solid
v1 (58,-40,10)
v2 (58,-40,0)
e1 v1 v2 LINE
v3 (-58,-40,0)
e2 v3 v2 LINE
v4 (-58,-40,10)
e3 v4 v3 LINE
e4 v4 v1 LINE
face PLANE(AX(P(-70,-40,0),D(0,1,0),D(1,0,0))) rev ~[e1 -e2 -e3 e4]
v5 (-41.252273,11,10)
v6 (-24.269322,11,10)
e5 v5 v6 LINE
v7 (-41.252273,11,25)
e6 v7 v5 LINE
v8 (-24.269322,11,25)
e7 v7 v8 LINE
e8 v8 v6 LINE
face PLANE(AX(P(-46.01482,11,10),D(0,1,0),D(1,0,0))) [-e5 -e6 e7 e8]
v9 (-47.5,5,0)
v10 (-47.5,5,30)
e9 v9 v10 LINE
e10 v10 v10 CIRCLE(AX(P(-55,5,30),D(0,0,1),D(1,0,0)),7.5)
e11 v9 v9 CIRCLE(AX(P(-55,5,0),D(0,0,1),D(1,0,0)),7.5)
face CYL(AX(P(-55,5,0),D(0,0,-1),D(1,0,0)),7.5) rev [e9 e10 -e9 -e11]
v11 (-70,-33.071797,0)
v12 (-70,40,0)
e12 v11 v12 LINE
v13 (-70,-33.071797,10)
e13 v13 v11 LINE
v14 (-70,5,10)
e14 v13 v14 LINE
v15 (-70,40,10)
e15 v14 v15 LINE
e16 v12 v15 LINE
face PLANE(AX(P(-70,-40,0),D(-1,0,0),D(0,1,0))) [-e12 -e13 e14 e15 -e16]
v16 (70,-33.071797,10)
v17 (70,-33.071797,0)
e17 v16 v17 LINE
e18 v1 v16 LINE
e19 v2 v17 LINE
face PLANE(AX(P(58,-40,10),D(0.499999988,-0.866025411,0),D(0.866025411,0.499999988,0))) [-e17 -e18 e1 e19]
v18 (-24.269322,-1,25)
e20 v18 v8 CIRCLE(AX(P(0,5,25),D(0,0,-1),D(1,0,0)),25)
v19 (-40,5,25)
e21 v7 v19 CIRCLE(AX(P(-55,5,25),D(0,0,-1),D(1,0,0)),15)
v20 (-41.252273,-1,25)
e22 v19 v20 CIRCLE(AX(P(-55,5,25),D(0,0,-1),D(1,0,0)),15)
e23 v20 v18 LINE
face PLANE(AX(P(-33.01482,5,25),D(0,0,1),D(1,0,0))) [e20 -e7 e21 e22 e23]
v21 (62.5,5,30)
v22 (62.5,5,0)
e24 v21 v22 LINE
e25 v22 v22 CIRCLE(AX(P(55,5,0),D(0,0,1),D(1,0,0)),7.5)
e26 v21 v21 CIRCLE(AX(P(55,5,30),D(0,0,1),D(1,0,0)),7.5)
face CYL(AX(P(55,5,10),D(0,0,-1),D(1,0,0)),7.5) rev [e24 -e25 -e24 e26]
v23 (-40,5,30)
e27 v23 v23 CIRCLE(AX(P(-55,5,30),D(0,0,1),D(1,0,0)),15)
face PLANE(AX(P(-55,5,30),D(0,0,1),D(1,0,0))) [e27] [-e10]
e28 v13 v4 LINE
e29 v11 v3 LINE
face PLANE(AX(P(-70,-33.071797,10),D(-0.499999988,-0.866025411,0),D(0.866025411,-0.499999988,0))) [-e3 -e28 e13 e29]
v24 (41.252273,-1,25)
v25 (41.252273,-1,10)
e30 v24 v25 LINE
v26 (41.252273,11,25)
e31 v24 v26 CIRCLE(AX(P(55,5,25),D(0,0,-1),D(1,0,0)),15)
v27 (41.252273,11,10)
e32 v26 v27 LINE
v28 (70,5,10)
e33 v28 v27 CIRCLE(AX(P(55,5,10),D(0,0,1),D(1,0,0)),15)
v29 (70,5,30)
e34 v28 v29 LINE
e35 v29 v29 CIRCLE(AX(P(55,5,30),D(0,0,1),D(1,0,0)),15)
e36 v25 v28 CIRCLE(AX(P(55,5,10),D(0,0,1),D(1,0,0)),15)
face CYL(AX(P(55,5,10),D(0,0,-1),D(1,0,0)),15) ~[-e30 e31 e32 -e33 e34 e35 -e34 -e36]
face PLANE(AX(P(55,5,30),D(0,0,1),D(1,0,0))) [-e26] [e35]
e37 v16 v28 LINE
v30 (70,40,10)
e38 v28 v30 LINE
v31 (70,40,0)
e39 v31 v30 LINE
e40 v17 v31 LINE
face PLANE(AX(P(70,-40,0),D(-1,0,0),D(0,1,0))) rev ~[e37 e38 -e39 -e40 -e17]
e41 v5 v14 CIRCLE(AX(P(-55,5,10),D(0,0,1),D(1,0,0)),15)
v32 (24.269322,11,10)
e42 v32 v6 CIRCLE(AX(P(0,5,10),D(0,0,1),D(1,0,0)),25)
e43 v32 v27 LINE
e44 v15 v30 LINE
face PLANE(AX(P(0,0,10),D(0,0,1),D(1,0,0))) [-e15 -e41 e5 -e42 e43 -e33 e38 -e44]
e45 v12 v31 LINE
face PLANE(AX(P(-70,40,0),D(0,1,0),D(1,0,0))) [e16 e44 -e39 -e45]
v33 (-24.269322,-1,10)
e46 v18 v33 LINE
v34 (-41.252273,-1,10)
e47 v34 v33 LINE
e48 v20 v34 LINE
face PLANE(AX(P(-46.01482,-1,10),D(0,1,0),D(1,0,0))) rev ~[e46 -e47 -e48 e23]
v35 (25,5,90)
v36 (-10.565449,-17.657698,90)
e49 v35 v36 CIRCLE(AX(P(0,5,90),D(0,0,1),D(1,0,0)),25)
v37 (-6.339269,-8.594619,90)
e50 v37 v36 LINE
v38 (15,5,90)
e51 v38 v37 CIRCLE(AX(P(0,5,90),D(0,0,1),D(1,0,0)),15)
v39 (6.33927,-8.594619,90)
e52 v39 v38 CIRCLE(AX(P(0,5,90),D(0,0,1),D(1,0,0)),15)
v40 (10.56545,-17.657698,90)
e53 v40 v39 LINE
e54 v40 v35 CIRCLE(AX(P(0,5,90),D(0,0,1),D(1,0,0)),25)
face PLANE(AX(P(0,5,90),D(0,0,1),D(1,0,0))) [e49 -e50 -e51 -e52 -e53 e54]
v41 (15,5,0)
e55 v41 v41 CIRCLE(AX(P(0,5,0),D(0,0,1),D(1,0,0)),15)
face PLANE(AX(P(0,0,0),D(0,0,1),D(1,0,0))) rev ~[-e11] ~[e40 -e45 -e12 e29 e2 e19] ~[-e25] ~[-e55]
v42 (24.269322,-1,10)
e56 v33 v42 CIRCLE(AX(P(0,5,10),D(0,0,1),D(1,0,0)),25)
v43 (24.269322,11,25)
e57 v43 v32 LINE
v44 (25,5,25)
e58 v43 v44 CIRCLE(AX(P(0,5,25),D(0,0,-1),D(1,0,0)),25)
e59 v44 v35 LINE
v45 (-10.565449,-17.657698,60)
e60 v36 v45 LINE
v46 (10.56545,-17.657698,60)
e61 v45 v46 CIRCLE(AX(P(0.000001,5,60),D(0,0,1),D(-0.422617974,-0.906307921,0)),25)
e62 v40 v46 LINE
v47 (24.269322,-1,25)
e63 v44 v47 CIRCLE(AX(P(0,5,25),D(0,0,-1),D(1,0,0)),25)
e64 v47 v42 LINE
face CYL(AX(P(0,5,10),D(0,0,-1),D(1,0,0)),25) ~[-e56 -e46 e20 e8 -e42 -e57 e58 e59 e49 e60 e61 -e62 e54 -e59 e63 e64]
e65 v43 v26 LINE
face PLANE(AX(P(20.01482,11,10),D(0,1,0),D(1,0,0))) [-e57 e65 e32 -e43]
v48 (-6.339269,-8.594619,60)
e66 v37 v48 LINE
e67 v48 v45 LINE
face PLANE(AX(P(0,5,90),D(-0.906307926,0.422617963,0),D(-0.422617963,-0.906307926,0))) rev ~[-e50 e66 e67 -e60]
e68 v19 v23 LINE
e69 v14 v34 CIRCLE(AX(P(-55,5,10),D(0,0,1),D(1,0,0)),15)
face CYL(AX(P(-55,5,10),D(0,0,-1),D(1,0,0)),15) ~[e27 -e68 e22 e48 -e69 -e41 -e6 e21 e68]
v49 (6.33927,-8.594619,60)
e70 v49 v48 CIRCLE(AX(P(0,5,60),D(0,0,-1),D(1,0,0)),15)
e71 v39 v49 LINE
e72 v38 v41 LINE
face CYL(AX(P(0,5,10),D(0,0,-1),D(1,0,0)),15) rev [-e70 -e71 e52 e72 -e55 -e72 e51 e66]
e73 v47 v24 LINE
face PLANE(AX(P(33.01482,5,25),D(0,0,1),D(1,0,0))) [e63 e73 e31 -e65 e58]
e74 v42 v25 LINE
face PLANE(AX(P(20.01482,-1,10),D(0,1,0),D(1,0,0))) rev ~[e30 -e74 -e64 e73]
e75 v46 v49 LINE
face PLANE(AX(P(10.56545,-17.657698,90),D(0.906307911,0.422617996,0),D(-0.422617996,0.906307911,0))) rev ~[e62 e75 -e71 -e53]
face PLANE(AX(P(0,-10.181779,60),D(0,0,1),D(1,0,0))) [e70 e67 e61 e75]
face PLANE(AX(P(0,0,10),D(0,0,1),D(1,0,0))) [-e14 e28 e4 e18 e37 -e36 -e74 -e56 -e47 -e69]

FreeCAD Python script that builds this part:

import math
import FreeCAD as App
import Part
import Sketcher
Q = App.Units.Quantity

doc = App.newDocument("Part")
body = doc.addObject("PartDesign::Body", "Body")

# Sketch on XY plane
sketch1 = body.newObject("Sketcher::SketchObject", "Sketch")
sketch1.AttachmentSupport = (doc.getObject("XY_Plane"), [""])
sketch1.MapMode = "FlatFace"
sketch1.addGeometry([
    Part.LineSegment(App.Vector(-70, 40, 0), App.Vector(-70, -40, 0)),  # 0
    Part.LineSegment(App.Vector(-70, -40, 0), App.Vector(70, -40, 0)),  # 1
    Part.LineSegment(App.Vector(70, -40, 0), App.Vector(70, 40, 0)),  # 2
    Part.LineSegment(App.Vector(70, 40, 0), App.Vector(-70, 40, 0)),  # 3
    Part.Circle(App.Vector(-55, 5, 0), App.Vector(0, 0, 1), 8),  # 4
    Part.Circle(App.Vector(0, 5, 0), App.Vector(0, 0, 1), 15),  # 5
    Part.Circle(App.Vector(55, 5, 0), App.Vector(0, 0, 1), 8),  # 6
], False)
sketch1.addConstraint([
    Sketcher.Constraint("Coincident", 0, 2, 1, 1),
    Sketcher.Constraint("Coincident", 1, 2, 2, 1),
    Sketcher.Constraint("Coincident", 2, 2, 3, 1),
    Sketcher.Constraint("Coincident", 3, 2, 0, 1),
    Sketcher.Constraint("Vertical", 0),
    Sketcher.Constraint("Horizontal", 1),
    Sketcher.Constraint("Vertical", 2),
    Sketcher.Constraint("Horizontal", 3),
    Sketcher.Constraint("Equal", 4, 6),
    Sketcher.Constraint("Symmetric", 0, 2, 2, 2, -1, 1),
    Sketcher.Constraint("Symmetric", 4, 3, 6, 3, -2),
    Sketcher.Constraint("PointOnObject", 5, 3, -2),
    Sketcher.Constraint("Horizontal", 4, 3, 5, 3),
    Sketcher.Constraint("Diameter", 4, 15.0),
    Sketcher.Constraint("Diameter", 5, 30.0),
    Sketcher.Constraint("DistanceX", 1, 1, 1, 2, 140.0),
    Sketcher.Constraint("DistanceY", 0, 2, 0, 1, 80.0),
    Sketcher.Constraint("DistanceX", 4, 3, -1, 1, 55.0),
    Sketcher.Constraint("DistanceY", -1, 1, 4, 3, 5.0),
])
pad1 = body.newObject("PartDesign::Pad", "Pad")
pad1.Profile = sketch1
pad1.Length = 10

# Sketch on XY plane
sketch2 = body.newObject("Sketcher::SketchObject", "Sketch001")
sketch2.AttachmentSupport = (doc.getObject("XY_Plane"), [""])
sketch2.MapMode = "FlatFace"
sketch2.AttachmentOffset = App.Placement(App.Vector(0, 0, 10), App.Rotation())
sketch2.addGeometry([
    Part.LineSegment(App.Vector(-58, -40, 0), App.Vector(-70, -33, 0)),  # 0
    Part.LineSegment(App.Vector(-70, -33, 0), App.Vector(-70, -40, 0)),  # 1
    Part.LineSegment(App.Vector(-70, -40, 0), App.Vector(-58, -40, 0)),  # 2
    Part.LineSegment(App.Vector(70, -40, 0), App.Vector(70, -33, 0)),  # 3
    Part.LineSegment(App.Vector(70, -33, 0), App.Vector(58, -40, 0)),  # 4
    Part.LineSegment(App.Vector(58, -40, 0), App.Vector(70, -40, 0)),  # 5
], False)
sketch2.addConstraint([
    Sketcher.Constraint("Coincident", 0, 2, 1, 1),
    Sketcher.Constraint("Coincident", 1, 2, 2, 1),
    Sketcher.Constraint("Coincident", 2, 2, 0, 1),
    Sketcher.Constraint("Coincident", 3, 2, 4, 1),
    Sketcher.Constraint("Coincident", 4, 2, 5, 1),
    Sketcher.Constraint("Coincident", 5, 2, 3, 1),
    Sketcher.Constraint("Vertical", 1),
    Sketcher.Constraint("Horizontal", 2),
    Sketcher.Constraint("Vertical", 3),
    Sketcher.Constraint("Horizontal", 5),
    Sketcher.Constraint("Symmetric", 0, 2, 3, 2, -2),
    Sketcher.Constraint("Symmetric", 2, 2, 4, 2, -2),
    Sketcher.Constraint("DistanceX", 2, 1, 2, 2, 12.0),
    Sketcher.Constraint("Angle", 0, Q("150.000001 deg")),
    Sketcher.Constraint("DistanceX", 0, 2, -1, 1, 70.0),
    Sketcher.Constraint("DistanceY", 1, 2, -1, 1, 40.0),
])
pocket1 = body.newObject("PartDesign::Pocket", "Pocket")
pocket1.Profile = sketch2
pocket1.Length = 11

# Sketch on XY plane
sketch3 = body.newObject("Sketcher::SketchObject", "Sketch002")
sketch3.AttachmentSupport = (doc.getObject("XY_Plane"), [""])
sketch3.MapMode = "FlatFace"
sketch3.AttachmentOffset = App.Placement(App.Vector(0, 0, 10), App.Rotation())
sketch3.addGeometry([
    Part.Circle(App.Vector(0, 5, 0), App.Vector(0, 0, 1), 25),
    Part.Circle(App.Vector(0, 5, 0), App.Vector(0, 0, 1), 15),
], False)
sketch3.addConstraint([
    Sketcher.Constraint("Coincident", 1, 3, 0, 3),
    Sketcher.Constraint("PointOnObject", 0, 3, -2),
    Sketcher.Constraint("Diameter", 0, 50.0),
    Sketcher.Constraint("Diameter", 1, 30.0),
    Sketcher.Constraint("DistanceY", -1, 1, 0, 3, 5.0),
])
pad2 = body.newObject("PartDesign::Pad", "Pad001")
pad2.Profile = sketch3
pad2.Length = 80

# Sketch on XY plane
sketch4 = body.newObject("Sketcher::SketchObject", "Sketch003")
sketch4.AttachmentSupport = (doc.getObject("XY_Plane"), [""])
sketch4.MapMode = "FlatFace"
sketch4.AttachmentOffset = App.Placement(App.Vector(0, 0, 10), App.Rotation())
sketch4.addGeometry([
    Part.Circle(App.Vector(55, 5, 0), App.Vector(0, 0, 1), 15),
    Part.Circle(App.Vector(55, 5, 0), App.Vector(0, 0, 1), 8),
    Part.Circle(App.Vector(-55, 5, 0), App.Vector(0, 0, 1), 15),
    Part.Circle(App.Vector(-55, 5, 0), App.Vector(0, 0, 1), 8),
], False)
sketch4.addConstraint([
    Sketcher.Constraint("Coincident", 1, 3, 0, 3),
    Sketcher.Constraint("Coincident", 3, 3, 2, 3),
    Sketcher.Constraint("Equal", 0, 2),
    Sketcher.Constraint("Equal", 1, 3),
    Sketcher.Constraint("Symmetric", 0, 3, 2, 3, -2),
    Sketcher.Constraint("Diameter", 0, 30.0),
    Sketcher.Constraint("Diameter", 1, 15.0),
    Sketcher.Constraint("DistanceX", -1, 1, 0, 3, 55.0),
    Sketcher.Constraint("DistanceY", -1, 1, 0, 3, 5.0),
])
pad3 = body.newObject("PartDesign::Pad", "Pad002")
pad3.Profile = sketch4
pad3.Length = 20

# Sketch on XY plane
sketch5 = body.newObject("Sketcher::SketchObject", "Sketch004")
sketch5.AttachmentSupport = (doc.getObject("XY_Plane"), [""])
sketch5.MapMode = "FlatFace"
sketch5.AttachmentOffset = App.Placement(App.Vector(0, 0, 10), App.Rotation())
sketch5.addGeometry([
    Part.LineSegment(App.Vector(-46, 11, 0), App.Vector(-46, -1, 0)),  # 0
    Part.LineSegment(App.Vector(-46, -1, 0), App.Vector(-20, -1, 0)),  # 1
    Part.LineSegment(App.Vector(-20, -1, 0), App.Vector(-20, 11, 0)),  # 2
    Part.LineSegment(App.Vector(-20, 11, 0), App.Vector(-46, 11, 0)),  # 3
    Part.LineSegment(App.Vector(20, 11, 0), App.Vector(20, -1, 0)),  # 4
    Part.LineSegment(App.Vector(20, -1, 0), App.Vector(46, -1, 0)),  # 5
    Part.LineSegment(App.Vector(46, -1, 0), App.Vector(46, 11, 0)),  # 6
    Part.LineSegment(App.Vector(46, 11, 0), App.Vector(20, 11, 0)),  # 7
], False)
sketch5.addConstraint([
    Sketcher.Constraint("Coincident", 0, 2, 1, 1),
    Sketcher.Constraint("Coincident", 1, 2, 2, 1),
    Sketcher.Constraint("Coincident", 2, 2, 3, 1),
    Sketcher.Constraint("Coincident", 3, 2, 0, 1),
    Sketcher.Constraint("Coincident", 4, 2, 5, 1),
    Sketcher.Constraint("Coincident", 5, 2, 6, 1),
    Sketcher.Constraint("Coincident", 6, 2, 7, 1),
    Sketcher.Constraint("Coincident", 7, 2, 4, 1),
    Sketcher.Constraint("Vertical", 0),
    Sketcher.Constraint("Horizontal", 1),
    Sketcher.Constraint("Vertical", 2),
    Sketcher.Constraint("Horizontal", 3),
    Sketcher.Constraint("Vertical", 4),
    Sketcher.Constraint("Horizontal", 5),
    Sketcher.Constraint("Vertical", 6),
    Sketcher.Constraint("Horizontal", 7),
    Sketcher.Constraint("Symmetric", 1, 2, 4, 2, -2),
    Sketcher.Constraint("Symmetric", 3, 2, 6, 2, -2),
    Sketcher.Constraint("DistanceX", 1, 1, 1, 2, 26.0),
    Sketcher.Constraint("DistanceY", 0, 2, 0, 1, 12.0),
    Sketcher.Constraint("DistanceY", 0, 2, -1, 1, 1.0),
    Sketcher.Constraint("DistanceX", 0, 2, -1, 1, 46.01482),
])
pad4 = body.newObject("PartDesign::Pad", "Pad003")
pad4.Profile = sketch5
pad4.Length = 15

# Sketch on XY plane
sketch6 = body.newObject("Sketcher::SketchObject", "Sketch005")
sketch6.AttachmentSupport = (doc.getObject("XY_Plane"), [""])
sketch6.MapMode = "FlatFace"
sketch6.AttachmentOffset = App.Placement(App.Vector(0, 0, 90), App.Rotation())
sketch6.addGeometry([
    Part.ArcOfCircle(Part.Circle(App.Vector(0, 5, 0), App.Vector(0, 0, 1), 25), math.radians(-115), math.radians(-65)),
    Part.LineSegment(App.Vector(11, -18, 0), App.Vector(0, 5, 0)),
    Part.LineSegment(App.Vector(0, 5, 0), App.Vector(-11, -18, 0)),
], False)
sketch6.addConstraint([
    Sketcher.Constraint("Coincident", 0, 2, 1, 1),
    Sketcher.Constraint("Coincident", 1, 2, 2, 1),
    Sketcher.Constraint("Coincident", 2, 2, 0, 1),
    Sketcher.Constraint("Coincident", 1, 2, 0, 3),
    Sketcher.Constraint("Symmetric", 0, 2, 2, 2, -2),
    Sketcher.Constraint("Radius", 0, 25.0),
    Sketcher.Constraint("Angle", 1, Q("114.999983 deg")),
    Sketcher.Constraint("DistanceY", -1, 1, 0, 3, 5.0),
])
pocket2 = body.newObject("PartDesign::Pocket", "Pocket001")
pocket2.Profile = sketch6
pocket2.Length = 30

doc.recompute()
